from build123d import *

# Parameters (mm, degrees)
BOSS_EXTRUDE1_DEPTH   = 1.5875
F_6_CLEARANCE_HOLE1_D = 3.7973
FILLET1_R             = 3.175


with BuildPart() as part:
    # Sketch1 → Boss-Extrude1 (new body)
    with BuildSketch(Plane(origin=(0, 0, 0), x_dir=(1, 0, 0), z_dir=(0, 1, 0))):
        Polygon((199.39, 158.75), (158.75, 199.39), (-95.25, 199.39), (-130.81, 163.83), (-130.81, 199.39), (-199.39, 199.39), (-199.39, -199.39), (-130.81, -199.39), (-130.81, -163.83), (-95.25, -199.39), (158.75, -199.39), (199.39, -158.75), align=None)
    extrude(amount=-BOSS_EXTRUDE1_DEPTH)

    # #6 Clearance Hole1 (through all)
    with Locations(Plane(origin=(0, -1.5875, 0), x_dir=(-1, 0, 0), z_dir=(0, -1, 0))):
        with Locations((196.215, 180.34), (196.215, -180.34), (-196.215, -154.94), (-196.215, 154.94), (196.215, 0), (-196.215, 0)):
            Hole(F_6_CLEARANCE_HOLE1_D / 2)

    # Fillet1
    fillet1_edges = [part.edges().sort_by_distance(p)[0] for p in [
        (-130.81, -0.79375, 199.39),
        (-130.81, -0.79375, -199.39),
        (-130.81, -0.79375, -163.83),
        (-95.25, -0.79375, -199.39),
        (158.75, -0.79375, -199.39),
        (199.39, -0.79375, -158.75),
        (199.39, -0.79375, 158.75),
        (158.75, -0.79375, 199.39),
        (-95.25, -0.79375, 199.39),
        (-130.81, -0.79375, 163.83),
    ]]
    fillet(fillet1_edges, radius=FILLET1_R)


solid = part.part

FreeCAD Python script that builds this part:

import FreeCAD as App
import Part
import Sketcher

V = App.Vector
Q = App.Units.Quantity


def edges_at(feature, points):
    """Names of the edges that pass closest to the given points."""
    edges = feature.Shape.Edges
    near = lambda p: min(range(len(edges)), key=lambda i: edges[i].distToShape(Part.Vertex(*p))[0])
    return sorted({f"Edge{near(p) + 1}" for p in points})

doc = App.newDocument("Part")
body = doc.addObject("PartDesign::Body", "Body")

# Sketch on XZ plane
sketch1 = body.newObject("Sketcher::SketchObject", "Sketch")
sketch1.AttachmentSupport = (doc.getObject("XZ_Plane"), [""])
sketch1.MapMode = "FlatFace"
sketch1.addGeometry([
    Part.LineSegment(V(199.39, -158.75, 0), V(158.75, -199.39, 0)),  # 0
    Part.LineSegment(V(158.75, -199.39, 0), V(-95.25, -199.39, 0)),  # 1
    Part.LineSegment(V(-95.25, -199.39, 0), V(-130.81, -163.83, 0)),  # 2
    Part.LineSegment(V(-130.81, -163.83, 0), V(-130.81, -199.39, 0)),  # 3
    Part.LineSegment(V(-130.81, -199.39, 0), V(-199.39, -199.39, 0)),  # 4
    Part.LineSegment(V(-199.39, -199.39, 0), V(-199.39, 199.39, 0)),  # 5
    Part.LineSegment(V(-199.39, 199.39, 0), V(-130.81, 199.39, 0)),  # 6
    Part.LineSegment(V(-130.81, 199.39, 0), V(-130.81, 163.83, 0)),  # 7
    Part.LineSegment(V(-130.81, 163.83, 0), V(-95.25, 199.39, 0)),  # 8
    Part.LineSegment(V(-95.25, 199.39, 0), V(158.75, 199.39, 0)),  # 9
    Part.LineSegment(V(158.75, 199.39, 0), V(199.39, 158.75, 0)),  # 10
    Part.LineSegment(V(199.39, 158.75, 0), V(199.39, -158.75, 0)),  # 11
], False)
sketch1.addConstraint([
    Sketcher.Constraint("Coincident", 0, 2, 1, 1),
    Sketcher.Constraint("Coincident", 1, 2, 2, 1),
    Sketcher.Constraint("Coincident", 2, 2, 3, 1),
    Sketcher.Constraint("Coincident", 3, 2, 4, 1),
    Sketcher.Constraint("Coincident", 4, 2, 5, 1),
    Sketcher.Constraint("Coincident", 5, 2, 6, 1),
    Sketcher.Constraint("Coincident", 6, 2, 7, 1),
    Sketcher.Constraint("Coincident", 7, 2, 8, 1),
    Sketcher.Constraint("Coincident", 8, 2, 9, 1),
    Sketcher.Constraint("Coincident", 9, 2, 10, 1),
    Sketcher.Constraint("Coincident", 10, 2, 11, 1),
    Sketcher.Constraint("Coincident", 11, 2, 0, 1),
    Sketcher.Constraint("Horizontal", 1),
    Sketcher.Constraint("Vertical", 3),
    Sketcher.Constraint("Horizontal", 4),
    Sketcher.Constraint("Vertical", 5),
    Sketcher.Constraint("Horizontal", 6),
    Sketcher.Constraint("Vertical", 7),
    Sketcher.Constraint("Horizontal", 9),
    Sketcher.Constraint("Vertical", 11),
    Sketcher.Constraint("Symmetric", 3, 2, 6, 2, -1),
    Sketcher.Constraint("Symmetric", 1, 2, 8, 2, -1),
    Sketcher.Constraint("Perpendicular", 0, 2),
    Sketcher.Constraint("Perpendicular", 2, 8),
    Sketcher.Constraint("Perpendicular", 8, 10),
    Sketcher.Constraint("Horizontal", 1, 2, 3, 2),
    Sketcher.Constraint("Vertical", 0, 2, 9, 2),
    Sketcher.Constraint("Equal", 3, 7),
    Sketcher.Constraint("DistanceX", 1, 2, 1, 1, Q("10 in")),
    Sketcher.Constraint("DistanceX", 4, 2, 4, 1, Q("2.7 in")),
    Sketcher.Constraint("DistanceY", 3, 2, 3, 1, Q("1.4 in")),
    Sketcher.Constraint("DistanceY", 5, 1, 5, 2, Q("15.7 in")),
    Sketcher.Constraint("DistanceY", 11, 2, 11, 1, Q("12.5 in")),
    Sketcher.Constraint("DistanceX", -1, 1, 0, 2, Q("6.25 in")),
])
pad1 = body.newObject("PartDesign::Pad", "Pad")
pad1.Profile = sketch1
pad1.Length = Q("0.0625 in")

# Sketch on XZ plane
sketch2 = body.newObject("Sketcher::SketchObject", "Sketch001")
sketch2.AttachmentSupport = (doc.getObject("XZ_Plane"), [""])
sketch2.MapMode = "FlatFace"
sketch2.AttachmentOffset = App.Placement(V(0, 0, 0.0625 * 25.4), App.Rotation())
sketch2.addGeometry([
    Part.Circle(V(-196.215, -180.34, 0), V(0, 0, 1), 1.89865),  # 0
    Part.Circle(V(-196.215, 180.34, 0), V(0, 0, 1), 1.89865),  # 1
    Part.Circle(V(196.215, 154.94, 0), V(0, 0, 1), 1.89865),  # 2
    Part.Circle(V(196.215, -154.94, 0), V(0, 0, 1), 1.89865),  # 3
    Part.Circle(V(-196.215, 0, 0), V(0, 0, 1), 1.89865),  # 4
    Part.Circle(V(196.215, 0, 0), V(0, 0, 1), 1.89865),  # 5
], False)
sketch2.addConstraint([
    Sketcher.Constraint("Equal", 0, 1),
    Sketcher.Constraint("Equal", 1, 2),
    Sketcher.Constraint("Equal", 2, 3),
    Sketcher.Constraint("Equal", 3, 4),
    Sketcher.Constraint("Equal", 4, 5),
    Sketcher.Constraint("Symmetric", 4, 3, 5, 3, -1, 1),
    Sketcher.Constraint("Symmetric", 0, 3, 1, 3, -1),
    Sketcher.Constraint("Symmetric", 2, 3, 3, 3, -1),
    Sketcher.Constraint("PointOnObject", 4, 3, -1),
    Sketcher.Constraint("Vertical", 1, 3, 4, 3),
    Sketcher.Constraint("Vertical", 3, 3, 5, 3),
    Sketcher.Constraint("DistanceY", 2, 3, 1, 3, Q("1 in")),
    Sketcher.Constraint("Diameter", 0, Q("0.1495 in")),
    Sketcher.Constraint("DistanceY", 0, 3, -1, 1, Q("7.1 in")),
    Sketcher.Constraint("DistanceX", 1, 3, 2, 3, Q("15.45 in")),
])
doc.recompute()
hole = body.newObject("PartDesign::Hole", "Hole")
hole.Profile = sketch2
hole.ThreadType = "None"
hole.Diameter = Q("0.1495 in")
hole.DepthType = "ThroughAll"
doc.recompute()

fillet = body.newObject("PartDesign::Fillet", "Fillet")
fillet.Base = (hole, edges_at(hole, [
    (-130.81, -0.794, 199.39),
    (-130.81, -0.794, -199.39),
    (-130.81, -0.794, -163.83),
    (-95.25, -0.794, -199.39),
    (158.75, -0.794, -199.39),
    (199.39, -0.794, -158.75),
    (199.39, -0.794, 158.75),
    (158.75, -0.794, 199.39),
    (-95.25, -0.794, 199.39),
    (-130.81, -0.794, 163.83),
]))
fillet.Radius = Q("0.125 in")

doc.recompute()
